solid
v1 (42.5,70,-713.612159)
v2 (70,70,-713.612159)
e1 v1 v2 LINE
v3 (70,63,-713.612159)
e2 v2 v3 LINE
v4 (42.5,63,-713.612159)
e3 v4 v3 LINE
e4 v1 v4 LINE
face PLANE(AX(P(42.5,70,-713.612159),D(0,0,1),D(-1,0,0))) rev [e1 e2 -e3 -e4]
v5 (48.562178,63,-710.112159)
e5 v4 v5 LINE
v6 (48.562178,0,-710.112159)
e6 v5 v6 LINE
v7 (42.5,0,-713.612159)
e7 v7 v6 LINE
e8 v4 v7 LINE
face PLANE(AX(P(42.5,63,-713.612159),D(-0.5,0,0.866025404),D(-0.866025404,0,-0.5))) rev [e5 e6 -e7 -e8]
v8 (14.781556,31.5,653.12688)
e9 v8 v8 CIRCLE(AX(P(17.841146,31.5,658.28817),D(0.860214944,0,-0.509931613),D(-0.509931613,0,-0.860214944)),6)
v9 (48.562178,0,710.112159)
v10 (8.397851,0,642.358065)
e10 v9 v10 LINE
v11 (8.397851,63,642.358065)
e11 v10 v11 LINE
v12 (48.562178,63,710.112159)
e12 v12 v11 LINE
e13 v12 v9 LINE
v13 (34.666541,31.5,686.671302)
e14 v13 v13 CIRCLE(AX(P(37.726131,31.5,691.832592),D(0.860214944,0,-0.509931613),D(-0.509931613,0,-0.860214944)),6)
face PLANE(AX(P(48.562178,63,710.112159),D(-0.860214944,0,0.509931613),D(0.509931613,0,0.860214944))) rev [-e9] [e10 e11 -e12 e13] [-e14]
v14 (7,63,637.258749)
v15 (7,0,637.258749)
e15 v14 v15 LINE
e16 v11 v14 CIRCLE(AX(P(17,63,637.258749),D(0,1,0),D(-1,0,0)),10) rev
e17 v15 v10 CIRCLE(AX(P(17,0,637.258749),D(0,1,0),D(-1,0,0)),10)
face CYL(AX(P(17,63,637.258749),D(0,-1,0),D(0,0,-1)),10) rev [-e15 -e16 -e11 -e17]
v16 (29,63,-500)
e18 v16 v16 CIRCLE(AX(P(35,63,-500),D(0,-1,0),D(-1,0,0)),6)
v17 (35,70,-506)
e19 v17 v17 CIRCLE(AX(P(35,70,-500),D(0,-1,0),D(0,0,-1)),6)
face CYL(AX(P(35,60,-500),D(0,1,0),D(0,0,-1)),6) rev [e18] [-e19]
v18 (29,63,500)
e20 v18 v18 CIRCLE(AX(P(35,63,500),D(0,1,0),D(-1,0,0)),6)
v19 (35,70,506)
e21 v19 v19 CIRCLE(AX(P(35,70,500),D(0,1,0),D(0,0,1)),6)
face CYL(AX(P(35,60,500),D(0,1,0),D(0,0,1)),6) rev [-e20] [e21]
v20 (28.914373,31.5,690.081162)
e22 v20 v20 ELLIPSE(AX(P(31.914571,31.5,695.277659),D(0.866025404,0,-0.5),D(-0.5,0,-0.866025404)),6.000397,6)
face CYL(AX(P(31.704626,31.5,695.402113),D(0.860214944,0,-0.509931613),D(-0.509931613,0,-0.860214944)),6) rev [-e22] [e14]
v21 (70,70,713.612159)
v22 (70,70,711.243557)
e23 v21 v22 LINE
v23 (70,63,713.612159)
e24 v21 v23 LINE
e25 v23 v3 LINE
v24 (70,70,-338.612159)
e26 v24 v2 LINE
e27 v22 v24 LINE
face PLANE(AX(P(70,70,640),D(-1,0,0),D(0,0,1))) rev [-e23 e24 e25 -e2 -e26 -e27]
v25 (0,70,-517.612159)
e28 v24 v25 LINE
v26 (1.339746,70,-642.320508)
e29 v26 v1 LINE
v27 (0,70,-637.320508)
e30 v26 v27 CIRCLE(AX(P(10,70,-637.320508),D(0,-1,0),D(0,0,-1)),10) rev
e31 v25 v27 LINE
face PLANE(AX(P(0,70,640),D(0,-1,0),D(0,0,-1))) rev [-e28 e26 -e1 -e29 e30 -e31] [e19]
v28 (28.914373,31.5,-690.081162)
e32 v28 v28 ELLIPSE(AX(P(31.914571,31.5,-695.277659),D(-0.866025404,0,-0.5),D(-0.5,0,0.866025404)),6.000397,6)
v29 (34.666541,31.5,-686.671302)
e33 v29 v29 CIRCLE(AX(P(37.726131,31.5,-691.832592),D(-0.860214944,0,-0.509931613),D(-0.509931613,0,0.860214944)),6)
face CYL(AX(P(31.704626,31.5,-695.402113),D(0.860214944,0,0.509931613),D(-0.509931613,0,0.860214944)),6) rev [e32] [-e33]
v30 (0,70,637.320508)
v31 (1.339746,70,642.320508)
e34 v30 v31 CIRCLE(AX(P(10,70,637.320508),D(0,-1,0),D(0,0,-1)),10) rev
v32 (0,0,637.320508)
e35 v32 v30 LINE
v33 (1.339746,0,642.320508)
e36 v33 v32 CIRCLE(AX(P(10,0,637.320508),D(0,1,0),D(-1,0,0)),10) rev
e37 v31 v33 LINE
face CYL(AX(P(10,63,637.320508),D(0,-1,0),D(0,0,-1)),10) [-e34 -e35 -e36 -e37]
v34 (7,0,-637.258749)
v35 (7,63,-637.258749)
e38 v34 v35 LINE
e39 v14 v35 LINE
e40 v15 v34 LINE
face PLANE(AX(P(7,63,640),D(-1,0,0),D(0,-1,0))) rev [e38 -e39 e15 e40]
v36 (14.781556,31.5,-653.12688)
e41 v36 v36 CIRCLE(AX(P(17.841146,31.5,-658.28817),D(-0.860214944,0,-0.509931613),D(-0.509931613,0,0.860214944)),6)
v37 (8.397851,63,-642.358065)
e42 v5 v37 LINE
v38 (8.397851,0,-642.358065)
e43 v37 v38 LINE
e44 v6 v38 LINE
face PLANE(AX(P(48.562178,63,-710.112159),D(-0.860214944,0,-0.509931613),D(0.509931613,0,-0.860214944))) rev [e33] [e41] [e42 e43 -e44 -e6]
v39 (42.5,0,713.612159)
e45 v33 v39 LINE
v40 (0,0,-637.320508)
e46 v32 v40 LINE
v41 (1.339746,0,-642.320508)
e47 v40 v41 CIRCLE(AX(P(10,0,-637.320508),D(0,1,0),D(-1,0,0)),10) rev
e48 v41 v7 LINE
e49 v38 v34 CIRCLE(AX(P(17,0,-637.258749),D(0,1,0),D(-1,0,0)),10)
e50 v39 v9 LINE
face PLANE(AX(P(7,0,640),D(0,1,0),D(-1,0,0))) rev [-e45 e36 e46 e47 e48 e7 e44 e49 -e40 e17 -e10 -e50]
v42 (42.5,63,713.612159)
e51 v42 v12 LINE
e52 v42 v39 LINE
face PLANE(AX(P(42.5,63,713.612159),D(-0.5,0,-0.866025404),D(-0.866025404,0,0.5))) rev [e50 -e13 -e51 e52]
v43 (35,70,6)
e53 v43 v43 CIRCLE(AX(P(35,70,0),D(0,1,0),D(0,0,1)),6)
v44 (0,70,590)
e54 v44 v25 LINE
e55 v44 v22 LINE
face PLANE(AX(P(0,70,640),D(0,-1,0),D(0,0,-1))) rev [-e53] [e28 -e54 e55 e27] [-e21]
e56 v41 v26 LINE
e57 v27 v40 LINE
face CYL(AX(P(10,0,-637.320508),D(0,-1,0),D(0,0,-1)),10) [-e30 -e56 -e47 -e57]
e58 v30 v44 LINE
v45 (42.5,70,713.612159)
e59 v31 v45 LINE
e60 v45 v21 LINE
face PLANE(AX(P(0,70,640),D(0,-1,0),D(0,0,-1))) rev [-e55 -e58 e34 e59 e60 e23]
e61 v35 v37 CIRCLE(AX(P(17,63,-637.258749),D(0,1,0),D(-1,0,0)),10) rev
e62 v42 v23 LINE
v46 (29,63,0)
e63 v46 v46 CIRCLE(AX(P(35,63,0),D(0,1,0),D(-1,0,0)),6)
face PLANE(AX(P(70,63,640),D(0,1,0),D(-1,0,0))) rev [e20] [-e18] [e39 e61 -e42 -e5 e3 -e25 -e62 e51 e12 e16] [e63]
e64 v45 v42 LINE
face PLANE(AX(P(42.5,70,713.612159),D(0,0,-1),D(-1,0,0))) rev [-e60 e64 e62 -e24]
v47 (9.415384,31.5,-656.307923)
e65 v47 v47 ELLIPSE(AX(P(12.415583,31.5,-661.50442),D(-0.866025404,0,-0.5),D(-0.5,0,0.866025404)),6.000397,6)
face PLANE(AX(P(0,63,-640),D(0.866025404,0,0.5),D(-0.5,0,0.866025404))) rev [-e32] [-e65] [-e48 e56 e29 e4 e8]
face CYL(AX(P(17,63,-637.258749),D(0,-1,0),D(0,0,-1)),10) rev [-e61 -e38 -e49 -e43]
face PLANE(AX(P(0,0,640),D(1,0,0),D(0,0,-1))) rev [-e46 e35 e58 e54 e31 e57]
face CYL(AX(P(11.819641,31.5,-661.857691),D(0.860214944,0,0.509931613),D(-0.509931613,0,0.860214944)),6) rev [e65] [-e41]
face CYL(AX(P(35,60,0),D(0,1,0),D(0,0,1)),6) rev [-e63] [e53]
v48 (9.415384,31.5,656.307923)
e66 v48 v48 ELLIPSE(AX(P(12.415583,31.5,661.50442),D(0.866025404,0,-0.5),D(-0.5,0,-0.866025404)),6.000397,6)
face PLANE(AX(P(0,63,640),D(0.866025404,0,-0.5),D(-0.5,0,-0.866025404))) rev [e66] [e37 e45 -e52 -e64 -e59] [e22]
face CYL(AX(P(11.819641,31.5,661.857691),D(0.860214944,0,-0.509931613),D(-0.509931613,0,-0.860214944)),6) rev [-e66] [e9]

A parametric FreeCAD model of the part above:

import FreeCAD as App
import Part
import Sketcher

V = App.Vector
Q = App.Units.Quantity


def edges_at(feature, points):
    """Names of the edges that pass closest to the given points."""
    edges = feature.Shape.Edges
    near = lambda p: min(range(len(edges)), key=lambda i: edges[i].distToShape(Part.Vertex(*p))[0])
    return sorted({f"Edge{near(p) + 1}" for p in points})


def add_polygon(sketch, points):
    """Adds a closed chain of lines whose ends are joined by coincident constraints."""
    first, n = sketch.GeometryCount, len(points)
    for a, b in zip(points, points[1:] + points[:1]):
        sketch.addGeometry(Part.LineSegment(App.Vector(*a, 0), App.Vector(*b, 0)), False)
    for i in range(n):
        sketch.addConstraint(Sketcher.Constraint("Coincident", first + i, 2, first + (i + 1) % n, 1))

doc = App.newDocument("Part")
body = doc.addObject("PartDesign::Body", "Body")

# Sketch on XY plane
sketch1 = doc.addObject("Sketcher::SketchObject", "Sketch")
body.addObject(sketch1)
sketch1.AttachmentSupport = (doc.XY_Plane, [""])
sketch1.MapMode = "FlatFace"
add_polygon(sketch1, [(0, 70), (0, 0), (7, 0), (7, 63), (70, 63), (70, 70)])  # lines 0-5
sketch1.addConstraint(Sketcher.Constraint("Vertical", 0))
sketch1.addConstraint(Sketcher.Constraint("Horizontal", 1))
sketch1.addConstraint(Sketcher.Constraint("Vertical", 2))
sketch1.addConstraint(Sketcher.Constraint("Horizontal", 3))
sketch1.addConstraint(Sketcher.Constraint("Vertical", 4))
sketch1.addConstraint(Sketcher.Constraint("Horizontal", 5))
sketch1.addConstraint(Sketcher.Constraint("Coincident", 0, 2, -1, 1))
sketch1.addConstraint(Sketcher.Constraint("Equal", 5, 0))
sketch1.addConstraint(Sketcher.Constraint("Equal", 3, 2))
sketch1.addConstraint(Sketcher.Constraint("DistanceX", 1, 1, 1, 2, Q("7 mm")))
sketch1.addConstraint(Sketcher.Constraint("DistanceX", 3, 1, 3, 2, Q("63 mm")))
pad1 = doc.addObject("PartDesign::Pad", "Pad")
body.addObject(pad1)
pad1.Profile = sketch1
pad1.Length = 640

# Sketch on XZ plane
sketch2 = doc.addObject("Sketcher::SketchObject", "Sketch001")
body.addObject(sketch2)
sketch2.AttachmentSupport = (doc.XZ_Plane, [""])
sketch2.MapMode = "FlatFace"
sketch2.AttachmentOffset = App.Placement(V(0, 0, -70), App.Rotation())
sketch2.addGeometry(Part.Circle(V(35, 0, 0), V(0, 0, 1), 6), False)
sketch2.addGeometry(Part.Circle(V(35, -500, 0), V(0, 0, 1), 6), False)
sketch2.addGeometry(Part.Circle(V(35, 500, 0), V(0, 0, 1), 6), False)
sketch2.addConstraint(Sketcher.Constraint("Equal", 0, 1))
sketch2.addConstraint(Sketcher.Constraint("Equal", 1, 2))
sketch2.addConstraint(Sketcher.Constraint("Symmetric", 1, 3, 2, 3, -1))
sketch2.addConstraint(Sketcher.Constraint("PointOnObject", 0, 3, -1))
sketch2.addConstraint(Sketcher.Constraint("Vertical", 0, 3, 1, 3))
sketch2.addConstraint(Sketcher.Constraint("Diameter", 0, Q("12 mm")))
sketch2.addConstraint(Sketcher.Constraint("DistanceX", -1, 1, 0, 3, Q("35 mm")))
sketch2.addConstraint(Sketcher.Constraint("DistanceY", 1, 3, -1, 1, Q("500 mm")))
pocket1 = doc.addObject("PartDesign::Pocket", "Pocket")
body.addObject(pocket1)
pocket1.Profile = sketch2
pocket1.Length = 10
pocket1.Reversed = True

# Sketch on XZ plane
sketch3 = doc.addObject("Sketcher::SketchObject", "Sketch002")
body.addObject(sketch3)
sketch3.AttachmentSupport = (doc.XZ_Plane, [""])
sketch3.MapMode = "FlatFace"
add_polygon(sketch3, [(0, 640), (42.5, 713.612159), (48.562178, 710.112159), (7, 640)])  # lines 0-3
sketch3.addConstraint(Sketcher.Constraint("Horizontal", 3))
sketch3.addConstraint(Sketcher.Constraint("PointOnObject", 3, 2, -2))
sketch3.addConstraint(Sketcher.Constraint("Perpendicular", 0, 1))
sketch3.addConstraint(Sketcher.Constraint("DistanceX", 3, 2, 3, 1, Q("7 mm")))
sketch3.addConstraint(Sketcher.Constraint("Angle", 0, Q("60 deg")))
sketch3.addConstraint(Sketcher.Constraint("Distance", 0, Q("85 mm")))
sketch3.addConstraint(Sketcher.Constraint("Distance", 1, Q("7 mm")))
sketch3.addConstraint(Sketcher.Constraint("DistanceY", -1, 1, 2, 2, Q("640 mm")))
pad2 = doc.addObject("PartDesign::Pad", "Pad001")
body.addObject(pad2)
pad2.Profile = sketch3
pad2.Length = 63
pad2.Reversed = True

# Sketch on XZ plane
sketch4 = doc.addObject("Sketcher::SketchObject", "Sketch003")
body.addObject(sketch4)
sketch4.AttachmentSupport = (doc.XZ_Plane, [""])
sketch4.MapMode = "FlatFace"
sketch4.AttachmentOffset = App.Placement(V(0, 0, -63), App.Rotation())
add_polygon(sketch4, [(70, 640), (0, 640), (42.5, 713.612159), (70, 713.612159)])  # lines 0-3
sketch4.addConstraint(Sketcher.Constraint("Horizontal", 0))
sketch4.addConstraint(Sketcher.Constraint("Horizontal", 2))
sketch4.addConstraint(Sketcher.Constraint("Vertical", 3))
sketch4.addConstraint(Sketcher.Constraint("PointOnObject", 0, 2, -2))
sketch4.addConstraint(Sketcher.Constraint("DistanceX", 0, 2, 0, 1, Q("70 mm")))
sketch4.addConstraint(Sketcher.Constraint("Angle", 1, Q("60 deg")))
sketch4.addConstraint(Sketcher.Constraint("Distance", 1, Q("85 mm")))
sketch4.addConstraint(Sketcher.Constraint("DistanceY", -1, 1, 0, 2, Q("640 mm")))
pad3 = doc.addObject("PartDesign::Pad", "Pad002")
body.addObject(pad3)
pad3.Profile = sketch4
pad3.Length = 7
pad3.Reversed = True

# Sketch on an angled plane
sketch5 = doc.addObject("Sketcher::SketchObject", "Sketch004")
body.addObject(sketch5)
sketch5.Placement = App.Placement(V(-275.55672, 0, 163.348804), App.Rotation(V(-0.509931613, 0, -0.860214944), V(0, 1, 0), V(0.860214944, 0, -0.509931613), "ZXY"))
sketch5.addGeometry(Part.Circle(V(-614.362481, 31.5, 0), V(0, 0, 1), 6), False)
sketch5.addGeometry(Part.Circle(V(-575.367085, 31.5, 0), V(0, 0, 1), 6), False)
sketch5.addConstraint(Sketcher.Constraint("Equal", 0, 1))
sketch5.addConstraint(Sketcher.Constraint("Horizontal", 0, 3, 1, 3))
sketch5.addConstraint(Sketcher.Constraint("Diameter", 0, Q("12 mm")))
sketch5.addConstraint(Sketcher.Constraint("DistanceY", -1, 1, 0, 3, Q("31.5 mm")))
sketch5.addConstraint(Sketcher.Constraint("DistanceX", 0, 3, -1, 1, Q("614.362481 mm")))
sketch5.addConstraint(Sketcher.Constraint("DistanceX", 1, 3, -1, 1, Q("575.367085 mm")))
pocket2 = doc.addObject("PartDesign::Pocket", "Pocket001")
body.addObject(pocket2)
pocket2.Profile = sketch5
pocket2.Length = 7
body2 = doc.addObject("PartDesign::Body", "Body001")
doc.recompute()

body2.BaseFeature = body
doc.recompute()

mirroring = doc.addObject("Part::Mirroring", "Mirroring")
mirroring.Source = body
mirroring.Base = V(0, 0, 0)
mirroring.Normal = V(0, 0, 1)
body3 = doc.addObject("PartDesign::Body", "Body002")
body3.BaseFeature = mirroring
boolean = doc.addObject("PartDesign::Boolean", "Boolean")
body2.addObject(boolean)
boolean.Type = "Fuse"
boolean.addObjects([body3])
doc.recompute()

fillet = doc.addObject("PartDesign::Fillet", "Fillet")
body2.addObject(fillet)
fillet.Base = (boolean, edges_at(boolean, [(0, 35, 640), (0, 35, -640)]))
fillet.Radius = 10
doc.recompute()

fillet2 = doc.addObject("PartDesign::Fillet", "Fillet001")
body2.addObject(fillet2)
fillet2.Base = (fillet, edges_at(fillet, [(7, 31.5, -640), (7, 31.5, 640)]))
fillet2.Radius = 10
mirroring.Visibility = False

doc.recompute()
